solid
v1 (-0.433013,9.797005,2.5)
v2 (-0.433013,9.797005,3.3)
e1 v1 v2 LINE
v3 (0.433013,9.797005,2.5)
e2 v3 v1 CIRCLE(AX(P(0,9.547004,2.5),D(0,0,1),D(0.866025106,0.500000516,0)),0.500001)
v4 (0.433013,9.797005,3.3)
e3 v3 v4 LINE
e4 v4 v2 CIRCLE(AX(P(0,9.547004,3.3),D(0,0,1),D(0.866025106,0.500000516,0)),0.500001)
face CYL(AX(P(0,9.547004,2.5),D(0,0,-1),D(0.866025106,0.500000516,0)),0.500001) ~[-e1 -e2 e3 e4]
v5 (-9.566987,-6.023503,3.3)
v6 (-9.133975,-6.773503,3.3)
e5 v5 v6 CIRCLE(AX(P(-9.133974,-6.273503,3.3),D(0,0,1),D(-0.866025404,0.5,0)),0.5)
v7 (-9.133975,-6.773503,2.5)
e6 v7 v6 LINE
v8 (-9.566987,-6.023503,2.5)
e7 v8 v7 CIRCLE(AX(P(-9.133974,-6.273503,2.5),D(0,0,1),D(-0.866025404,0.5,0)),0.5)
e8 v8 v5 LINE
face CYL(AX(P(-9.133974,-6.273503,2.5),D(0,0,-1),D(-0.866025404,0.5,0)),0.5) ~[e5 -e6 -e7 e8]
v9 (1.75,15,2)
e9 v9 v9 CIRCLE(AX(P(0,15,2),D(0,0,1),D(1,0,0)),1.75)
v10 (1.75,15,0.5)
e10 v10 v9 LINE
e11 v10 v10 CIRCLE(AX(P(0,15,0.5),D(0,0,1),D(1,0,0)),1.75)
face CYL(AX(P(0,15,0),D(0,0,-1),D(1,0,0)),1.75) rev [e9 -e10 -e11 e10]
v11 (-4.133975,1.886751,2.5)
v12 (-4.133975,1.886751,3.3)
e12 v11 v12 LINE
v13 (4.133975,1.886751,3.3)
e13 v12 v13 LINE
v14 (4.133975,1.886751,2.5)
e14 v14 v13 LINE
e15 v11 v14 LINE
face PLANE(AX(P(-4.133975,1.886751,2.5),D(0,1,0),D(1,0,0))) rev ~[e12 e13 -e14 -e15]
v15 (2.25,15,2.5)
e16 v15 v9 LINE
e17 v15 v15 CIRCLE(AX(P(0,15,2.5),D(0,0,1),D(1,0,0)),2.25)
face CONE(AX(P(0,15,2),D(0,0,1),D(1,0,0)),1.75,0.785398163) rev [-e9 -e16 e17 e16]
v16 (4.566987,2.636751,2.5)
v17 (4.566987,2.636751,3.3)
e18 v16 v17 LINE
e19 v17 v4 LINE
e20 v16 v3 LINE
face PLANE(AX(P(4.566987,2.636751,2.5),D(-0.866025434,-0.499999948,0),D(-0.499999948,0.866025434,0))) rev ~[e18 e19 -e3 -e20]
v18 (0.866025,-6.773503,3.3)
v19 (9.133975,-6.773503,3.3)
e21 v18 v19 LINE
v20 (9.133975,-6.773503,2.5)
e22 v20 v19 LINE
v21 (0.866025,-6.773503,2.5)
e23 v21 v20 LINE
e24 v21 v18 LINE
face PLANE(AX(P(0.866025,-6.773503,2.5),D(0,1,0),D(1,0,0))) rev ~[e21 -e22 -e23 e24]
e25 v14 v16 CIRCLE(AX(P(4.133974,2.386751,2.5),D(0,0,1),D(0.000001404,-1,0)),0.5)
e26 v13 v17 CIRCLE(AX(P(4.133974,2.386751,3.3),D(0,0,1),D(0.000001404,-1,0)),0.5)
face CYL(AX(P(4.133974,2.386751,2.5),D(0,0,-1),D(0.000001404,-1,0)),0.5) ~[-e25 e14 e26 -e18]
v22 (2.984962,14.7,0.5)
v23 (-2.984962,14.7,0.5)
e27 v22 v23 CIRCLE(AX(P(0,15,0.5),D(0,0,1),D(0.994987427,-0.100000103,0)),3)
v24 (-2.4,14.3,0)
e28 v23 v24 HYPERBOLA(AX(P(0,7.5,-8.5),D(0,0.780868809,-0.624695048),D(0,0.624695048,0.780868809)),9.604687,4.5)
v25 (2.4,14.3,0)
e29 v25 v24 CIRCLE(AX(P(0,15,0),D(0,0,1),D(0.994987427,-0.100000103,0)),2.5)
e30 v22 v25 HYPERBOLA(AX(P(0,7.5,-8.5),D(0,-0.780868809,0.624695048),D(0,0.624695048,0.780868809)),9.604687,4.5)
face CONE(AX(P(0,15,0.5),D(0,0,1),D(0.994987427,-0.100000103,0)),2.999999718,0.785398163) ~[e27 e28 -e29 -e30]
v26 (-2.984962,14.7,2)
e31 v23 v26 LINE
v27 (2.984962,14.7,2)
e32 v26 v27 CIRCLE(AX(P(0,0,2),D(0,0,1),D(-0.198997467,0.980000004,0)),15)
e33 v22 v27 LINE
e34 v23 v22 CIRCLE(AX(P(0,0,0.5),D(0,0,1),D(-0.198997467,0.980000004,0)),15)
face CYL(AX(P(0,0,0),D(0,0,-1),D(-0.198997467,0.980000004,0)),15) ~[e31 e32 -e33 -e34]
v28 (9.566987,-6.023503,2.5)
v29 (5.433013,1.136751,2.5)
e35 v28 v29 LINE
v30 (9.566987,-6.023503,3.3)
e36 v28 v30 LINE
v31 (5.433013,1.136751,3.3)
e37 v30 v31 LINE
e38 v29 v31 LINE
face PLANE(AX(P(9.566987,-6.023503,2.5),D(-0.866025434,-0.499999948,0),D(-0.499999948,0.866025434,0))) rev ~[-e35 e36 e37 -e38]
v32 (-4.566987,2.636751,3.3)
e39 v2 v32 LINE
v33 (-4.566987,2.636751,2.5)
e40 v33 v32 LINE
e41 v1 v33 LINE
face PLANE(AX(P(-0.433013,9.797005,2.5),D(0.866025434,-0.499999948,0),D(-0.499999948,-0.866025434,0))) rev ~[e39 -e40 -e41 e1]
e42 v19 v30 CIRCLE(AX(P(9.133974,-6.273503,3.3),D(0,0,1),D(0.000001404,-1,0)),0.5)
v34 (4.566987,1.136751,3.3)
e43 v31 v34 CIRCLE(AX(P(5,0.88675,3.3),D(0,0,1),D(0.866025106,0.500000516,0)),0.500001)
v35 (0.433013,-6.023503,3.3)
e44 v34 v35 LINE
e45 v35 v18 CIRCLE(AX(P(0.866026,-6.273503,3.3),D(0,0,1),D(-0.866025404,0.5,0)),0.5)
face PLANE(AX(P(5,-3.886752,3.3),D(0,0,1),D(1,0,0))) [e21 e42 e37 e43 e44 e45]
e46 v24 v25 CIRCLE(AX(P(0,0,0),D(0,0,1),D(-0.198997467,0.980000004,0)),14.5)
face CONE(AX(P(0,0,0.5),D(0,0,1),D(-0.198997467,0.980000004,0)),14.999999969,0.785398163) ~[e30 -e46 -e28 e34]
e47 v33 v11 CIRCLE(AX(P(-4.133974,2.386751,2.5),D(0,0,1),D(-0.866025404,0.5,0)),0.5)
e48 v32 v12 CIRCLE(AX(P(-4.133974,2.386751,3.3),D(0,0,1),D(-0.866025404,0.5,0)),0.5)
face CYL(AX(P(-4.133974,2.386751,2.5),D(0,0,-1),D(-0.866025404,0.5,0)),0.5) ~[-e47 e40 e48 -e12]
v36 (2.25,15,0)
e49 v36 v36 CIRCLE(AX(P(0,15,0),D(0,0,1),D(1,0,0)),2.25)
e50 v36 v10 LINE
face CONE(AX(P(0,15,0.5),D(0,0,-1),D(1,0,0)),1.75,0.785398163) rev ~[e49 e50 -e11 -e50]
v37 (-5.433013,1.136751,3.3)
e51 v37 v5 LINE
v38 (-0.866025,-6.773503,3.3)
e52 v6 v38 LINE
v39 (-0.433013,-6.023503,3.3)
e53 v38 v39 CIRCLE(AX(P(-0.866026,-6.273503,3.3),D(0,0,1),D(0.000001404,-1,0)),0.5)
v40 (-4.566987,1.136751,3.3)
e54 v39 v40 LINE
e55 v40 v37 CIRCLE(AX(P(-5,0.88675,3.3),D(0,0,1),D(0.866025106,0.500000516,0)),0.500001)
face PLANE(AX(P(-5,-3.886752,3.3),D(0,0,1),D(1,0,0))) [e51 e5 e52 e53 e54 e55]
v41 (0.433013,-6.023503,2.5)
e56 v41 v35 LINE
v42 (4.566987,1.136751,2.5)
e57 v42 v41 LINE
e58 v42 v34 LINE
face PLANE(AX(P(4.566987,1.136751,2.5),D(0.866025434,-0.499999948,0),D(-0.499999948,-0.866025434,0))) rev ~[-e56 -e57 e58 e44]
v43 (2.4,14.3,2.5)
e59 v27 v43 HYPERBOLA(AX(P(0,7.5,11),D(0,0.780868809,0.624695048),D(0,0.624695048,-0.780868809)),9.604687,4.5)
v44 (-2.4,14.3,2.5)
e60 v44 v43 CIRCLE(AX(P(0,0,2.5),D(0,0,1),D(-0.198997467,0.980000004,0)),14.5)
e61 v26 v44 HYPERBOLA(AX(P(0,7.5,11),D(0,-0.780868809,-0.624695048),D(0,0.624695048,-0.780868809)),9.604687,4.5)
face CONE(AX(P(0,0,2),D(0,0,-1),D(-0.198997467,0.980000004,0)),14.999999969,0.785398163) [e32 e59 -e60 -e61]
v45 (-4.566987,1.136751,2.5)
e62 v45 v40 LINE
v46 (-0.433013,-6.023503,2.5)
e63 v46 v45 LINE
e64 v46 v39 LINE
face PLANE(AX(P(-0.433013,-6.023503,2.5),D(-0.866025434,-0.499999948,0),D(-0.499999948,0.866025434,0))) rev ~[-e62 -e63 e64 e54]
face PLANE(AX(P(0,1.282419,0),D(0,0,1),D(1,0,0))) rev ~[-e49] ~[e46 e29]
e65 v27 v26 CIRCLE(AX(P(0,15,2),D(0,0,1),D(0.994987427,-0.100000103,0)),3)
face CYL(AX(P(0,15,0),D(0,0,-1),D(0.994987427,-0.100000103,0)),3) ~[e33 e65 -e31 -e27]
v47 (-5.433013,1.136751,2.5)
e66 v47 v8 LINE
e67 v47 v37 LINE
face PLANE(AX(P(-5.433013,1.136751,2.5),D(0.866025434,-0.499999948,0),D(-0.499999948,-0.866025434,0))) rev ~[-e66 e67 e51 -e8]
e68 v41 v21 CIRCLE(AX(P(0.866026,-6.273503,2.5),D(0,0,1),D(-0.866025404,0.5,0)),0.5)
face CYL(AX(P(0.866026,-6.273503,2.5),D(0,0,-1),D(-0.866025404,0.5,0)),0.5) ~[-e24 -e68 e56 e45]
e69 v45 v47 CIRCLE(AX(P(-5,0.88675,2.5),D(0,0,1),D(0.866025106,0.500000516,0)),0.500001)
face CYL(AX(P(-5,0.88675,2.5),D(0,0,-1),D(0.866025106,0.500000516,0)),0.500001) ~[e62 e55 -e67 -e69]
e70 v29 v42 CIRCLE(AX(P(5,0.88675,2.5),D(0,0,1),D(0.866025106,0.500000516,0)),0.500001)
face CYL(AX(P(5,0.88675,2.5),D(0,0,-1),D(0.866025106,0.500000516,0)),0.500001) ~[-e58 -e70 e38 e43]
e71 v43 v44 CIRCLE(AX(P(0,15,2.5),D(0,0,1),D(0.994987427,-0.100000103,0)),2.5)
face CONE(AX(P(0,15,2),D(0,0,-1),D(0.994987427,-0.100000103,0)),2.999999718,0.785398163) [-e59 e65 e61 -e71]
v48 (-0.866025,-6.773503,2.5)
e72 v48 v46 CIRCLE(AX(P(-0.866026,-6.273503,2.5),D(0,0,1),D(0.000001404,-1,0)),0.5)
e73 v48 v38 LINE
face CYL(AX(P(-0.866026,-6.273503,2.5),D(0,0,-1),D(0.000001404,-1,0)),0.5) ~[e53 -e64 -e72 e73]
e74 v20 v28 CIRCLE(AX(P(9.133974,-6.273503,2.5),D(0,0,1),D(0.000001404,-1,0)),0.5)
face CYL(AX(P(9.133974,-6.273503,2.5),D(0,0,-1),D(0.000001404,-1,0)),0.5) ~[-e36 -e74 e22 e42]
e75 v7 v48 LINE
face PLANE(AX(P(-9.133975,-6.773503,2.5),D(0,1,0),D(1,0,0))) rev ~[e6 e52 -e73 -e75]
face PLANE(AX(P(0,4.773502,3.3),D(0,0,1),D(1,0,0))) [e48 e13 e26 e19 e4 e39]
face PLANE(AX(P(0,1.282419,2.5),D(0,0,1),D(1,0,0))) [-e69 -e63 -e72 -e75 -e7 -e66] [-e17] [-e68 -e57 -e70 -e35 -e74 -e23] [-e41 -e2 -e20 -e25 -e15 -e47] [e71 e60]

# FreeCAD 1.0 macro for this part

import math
import FreeCAD as App
import Part
import Sketcher
Q = App.Units.Quantity


def edges_at(feature, points):
    """Names of the edges that pass closest to the given points."""
    edges = feature.Shape.Edges
    near = lambda p: min(range(len(edges)), key=lambda i: edges[i].distToShape(Part.Vertex(*p))[0])
    return sorted({f"Edge{near(p) + 1}" for p in points})

doc = App.newDocument("Part")
params = doc.addObject("Spreadsheet::Sheet", "Params")
for row, (alias, value) in enumerate([
    ("sketch1_radius", "3 mm"),
    ("sketch1_radius2", "15 mm"),
    ("sketch1_diameter", "3.5 mm"),
    ("pad1_length", "2.5 mm"),
    ("sketch2_radius", "0.5 mm"),
    ("pad2_length", "0.8 mm"),
    ("chamfer_size", "0.5 mm"),
], start=1):
    params.set(f"A{row}", alias)
    params.set(f"B{row}", "=" + value)
    params.setAlias(f"B{row}", alias)

body = doc.addObject("PartDesign::Body", "Body")

# Sketch on XY plane
sketch1 = body.newObject("Sketcher::SketchObject", "Sketch")
sketch1.AttachmentSupport = (doc.getObject("XY_Plane"), [""])
sketch1.MapMode = "FlatFace"
sketch1.addGeometry([
    Part.ArcOfCircle(Part.Circle(App.Vector(0, 15, 0), App.Vector(0, 0, 1), 3), math.radians(-6), math.radians(186)),
    Part.ArcOfCircle(Part.Circle(App.Vector(0, 0, 0), App.Vector(0, 0, 1), 15), math.radians(101), math.radians(439)),
    Part.Circle(App.Vector(0, 15, 0), App.Vector(0, 0, 1), 1.8),
], False)
sketch1.addConstraint([
    Sketcher.Constraint("Coincident", 0, 1, 1, 2),
    Sketcher.Constraint("Coincident", 1, 1, 0, 2),
    Sketcher.Constraint("Coincident", 1, 3, -1, 1),
    Sketcher.Constraint("Coincident", 2, 3, 0, 3),
    Sketcher.Constraint("PointOnObject", 0, 3, -2),
    Sketcher.Constraint("Radius", 0, 3.0),
    Sketcher.Constraint("Radius", 1, 15.0),
    Sketcher.Constraint("Diameter", 2, 3.5),
    Sketcher.Constraint("DistanceY", -1, 1, 0, 3, 15.0),
])
sketch1.setExpression("Constraints[5]", "Params.sketch1_radius")
sketch1.setExpression("Constraints[6]", "Params.sketch1_radius2")
sketch1.setExpression("Constraints[7]", "Params.sketch1_diameter")
pad1 = body.newObject("PartDesign::Pad", "Pad")
pad1.Profile = sketch1
pad1.setExpression("Length", "Params.pad1_length")

# Sketch on XY plane
sketch2 = body.newObject("Sketcher::SketchObject", "Sketch001")
sketch2.AttachmentSupport = (doc.getObject("XY_Plane"), [""])
sketch2.MapMode = "FlatFace"
sketch2.AttachmentOffset = App.Placement(App.Vector(0, 0, 2.5), App.Rotation())
sketch2.addGeometry([
    Part.LineSegment(App.Vector(-4.1, 1.9, 0), App.Vector(4.1, 1.9, 0)),  # 0
    Part.ArcOfCircle(Part.Circle(App.Vector(4.1, 2.4, 0), App.Vector(0, 0, 1), 0.5), math.radians(-90), math.radians(30)),  # 1
    Part.LineSegment(App.Vector(4.6, 2.6, 0), App.Vector(0.4, 9.8, 0)),  # 2
    Part.ArcOfCircle(Part.Circle(App.Vector(0, 9.5, 0), App.Vector(0, 0, 1), 0.5), math.radians(30), math.radians(150)),  # 3
    Part.LineSegment(App.Vector(-0.4, 9.8, 0), App.Vector(-4.6, 2.6, 0)),  # 4
    Part.ArcOfCircle(Part.Circle(App.Vector(-4.1, 2.4, 0), App.Vector(0, 0, 1), 0.5), math.radians(150), math.radians(270)),  # 5
    Part.ArcOfCircle(Part.Circle(App.Vector(-5, 0.9, 0), App.Vector(0, 0, 1), 0.5), math.radians(30), math.radians(150)),  # 6
    Part.LineSegment(App.Vector(-5.4, 1.1, 0), App.Vector(-9.6, -6, 0)),  # 7
    Part.ArcOfCircle(Part.Circle(App.Vector(-9.1, -6.3, 0), App.Vector(0, 0, 1), 0.5), math.radians(150), math.radians(270)),  # 8
    Part.LineSegment(App.Vector(-9.1, -6.8, 0), App.Vector(-0.9, -6.8, 0)),  # 9
    Part.ArcOfCircle(Part.Circle(App.Vector(-0.9, -6.3, 0), App.Vector(0, 0, 1), 0.5), math.radians(-90), math.radians(30)),  # 10
    Part.LineSegment(App.Vector(-0.4, -6, 0), App.Vector(-4.6, 1.1, 0)),  # 11
    Part.LineSegment(App.Vector(4.6, 1.1, 0), App.Vector(0.4, -6, 0)),  # 12
    Part.ArcOfCircle(Part.Circle(App.Vector(0.9, -6.3, 0), App.Vector(0, 0, 1), 0.5), math.radians(150), math.radians(270)),  # 13
    Part.LineSegment(App.Vector(0.9, -6.8, 0), App.Vector(9.1, -6.8, 0)),  # 14
    Part.ArcOfCircle(Part.Circle(App.Vector(9.1, -6.3, 0), App.Vector(0, 0, 1), 0.5), math.radians(-90), math.radians(30)),  # 15
    Part.LineSegment(App.Vector(9.6, -6, 0), App.Vector(5.4, 1.1, 0)),  # 16
    Part.ArcOfCircle(Part.Circle(App.Vector(5, 0.9, 0), App.Vector(0, 0, 1), 0.5), math.radians(30), math.radians(150)),  # 17
], False)
sketch2.addConstraint([
    Sketcher.Constraint("Tangent", 0, 2, 1, 1),
    Sketcher.Constraint("Tangent", 1, 2, 2, 1),
    Sketcher.Constraint("Tangent", 2, 2, 3, 1),
    Sketcher.Constraint("Tangent", 3, 2, 4, 1),
    Sketcher.Constraint("Tangent", 4, 2, 5, 1),
    Sketcher.Constraint("Tangent", 5, 2, 0, 1),
    Sketcher.Constraint("Tangent", 6, 2, 7, 1),
    Sketcher.Constraint("Tangent", 7, 2, 8, 1),
    Sketcher.Constraint("Tangent", 8, 2, 9, 1),
    Sketcher.Constraint("Tangent", 9, 2, 10, 1),
    Sketcher.Constraint("Tangent", 10, 2, 11, 1),
    Sketcher.Constraint("Tangent", 11, 2, 6, 1),
    Sketcher.Constraint("Tangent", 12, 2, 13, 1),
    Sketcher.Constraint("Tangent", 13, 2, 14, 1),
    Sketcher.Constraint("Tangent", 14, 2, 15, 1),
    Sketcher.Constraint("Tangent", 15, 2, 16, 1),
    Sketcher.Constraint("Tangent", 16, 2, 17, 1),
    Sketcher.Constraint("Tangent", 17, 2, 12, 1),
    Sketcher.Constraint("Horizontal", 0),
    Sketcher.Constraint("Horizontal", 9),
    Sketcher.Constraint("Horizontal", 14),
    Sketcher.Constraint("Equal", 1, 3),
    Sketcher.Constraint("Equal", 3, 5),
    Sketcher.Constraint("Equal", 5, 6),
    Sketcher.Constraint("Equal", 6, 8),
    Sketcher.Constraint("Equal", 8, 10),
    Sketcher.Constraint("Equal", 10, 13),
    Sketcher.Constraint("Equal", 13, 15),
    Sketcher.Constraint("Equal", 15, 17),
    Sketcher.Constraint("Symmetric", 10, 3, 13, 3, -2),
    Sketcher.Constraint("Symmetric", 6, 3, 17, 3, -2),
    Sketcher.Constraint("Symmetric", 2, 2, 3, 2, -2),
    Sketcher.Constraint("Parallel", 4, 7),
    Sketcher.Constraint("Parallel", 2, 11),
    Sketcher.Constraint("Parallel", 11, 16),
    Sketcher.Constraint("Vertical", 3, 2, 10, 2),
    Sketcher.Constraint("Vertical", 4, 2, 11, 2),
    Sketcher.Constraint("Radius", 1, 0.5),
    Sketcher.Constraint("Angle", 2, Q("119.999997 deg")),
    Sketcher.Constraint("DistanceX", 6, 3, -1, 1, 5.0),
    Sketcher.Constraint("DistanceY", 17, 3, 0, 2, 1.000001),
    Sketcher.Constraint("DistanceY", -1, 1, 1, 3, 2.386751),
])
sketch2.setExpression("Constraints[37]", "Params.sketch2_radius")
pad2 = body.newObject("PartDesign::Pad", "Pad001")
pad2.Profile = sketch2
pad2.setExpression("Length", "Params.pad2_length")
doc.recompute()

chamfer = body.newObject("PartDesign::Chamfer", "Chamfer")
chamfer.Base = (pad2, edges_at(pad2, [
    (0, -15, 2.5),
    (0, -15, 0),
    (0, 18, 2.5),
    (0, 18, 0),
    (-1.75, 15, 0),
    (-1.75, 15, 2.5),
]))
chamfer.setExpression("Size", "Params.chamfer_size")

doc.recompute()
